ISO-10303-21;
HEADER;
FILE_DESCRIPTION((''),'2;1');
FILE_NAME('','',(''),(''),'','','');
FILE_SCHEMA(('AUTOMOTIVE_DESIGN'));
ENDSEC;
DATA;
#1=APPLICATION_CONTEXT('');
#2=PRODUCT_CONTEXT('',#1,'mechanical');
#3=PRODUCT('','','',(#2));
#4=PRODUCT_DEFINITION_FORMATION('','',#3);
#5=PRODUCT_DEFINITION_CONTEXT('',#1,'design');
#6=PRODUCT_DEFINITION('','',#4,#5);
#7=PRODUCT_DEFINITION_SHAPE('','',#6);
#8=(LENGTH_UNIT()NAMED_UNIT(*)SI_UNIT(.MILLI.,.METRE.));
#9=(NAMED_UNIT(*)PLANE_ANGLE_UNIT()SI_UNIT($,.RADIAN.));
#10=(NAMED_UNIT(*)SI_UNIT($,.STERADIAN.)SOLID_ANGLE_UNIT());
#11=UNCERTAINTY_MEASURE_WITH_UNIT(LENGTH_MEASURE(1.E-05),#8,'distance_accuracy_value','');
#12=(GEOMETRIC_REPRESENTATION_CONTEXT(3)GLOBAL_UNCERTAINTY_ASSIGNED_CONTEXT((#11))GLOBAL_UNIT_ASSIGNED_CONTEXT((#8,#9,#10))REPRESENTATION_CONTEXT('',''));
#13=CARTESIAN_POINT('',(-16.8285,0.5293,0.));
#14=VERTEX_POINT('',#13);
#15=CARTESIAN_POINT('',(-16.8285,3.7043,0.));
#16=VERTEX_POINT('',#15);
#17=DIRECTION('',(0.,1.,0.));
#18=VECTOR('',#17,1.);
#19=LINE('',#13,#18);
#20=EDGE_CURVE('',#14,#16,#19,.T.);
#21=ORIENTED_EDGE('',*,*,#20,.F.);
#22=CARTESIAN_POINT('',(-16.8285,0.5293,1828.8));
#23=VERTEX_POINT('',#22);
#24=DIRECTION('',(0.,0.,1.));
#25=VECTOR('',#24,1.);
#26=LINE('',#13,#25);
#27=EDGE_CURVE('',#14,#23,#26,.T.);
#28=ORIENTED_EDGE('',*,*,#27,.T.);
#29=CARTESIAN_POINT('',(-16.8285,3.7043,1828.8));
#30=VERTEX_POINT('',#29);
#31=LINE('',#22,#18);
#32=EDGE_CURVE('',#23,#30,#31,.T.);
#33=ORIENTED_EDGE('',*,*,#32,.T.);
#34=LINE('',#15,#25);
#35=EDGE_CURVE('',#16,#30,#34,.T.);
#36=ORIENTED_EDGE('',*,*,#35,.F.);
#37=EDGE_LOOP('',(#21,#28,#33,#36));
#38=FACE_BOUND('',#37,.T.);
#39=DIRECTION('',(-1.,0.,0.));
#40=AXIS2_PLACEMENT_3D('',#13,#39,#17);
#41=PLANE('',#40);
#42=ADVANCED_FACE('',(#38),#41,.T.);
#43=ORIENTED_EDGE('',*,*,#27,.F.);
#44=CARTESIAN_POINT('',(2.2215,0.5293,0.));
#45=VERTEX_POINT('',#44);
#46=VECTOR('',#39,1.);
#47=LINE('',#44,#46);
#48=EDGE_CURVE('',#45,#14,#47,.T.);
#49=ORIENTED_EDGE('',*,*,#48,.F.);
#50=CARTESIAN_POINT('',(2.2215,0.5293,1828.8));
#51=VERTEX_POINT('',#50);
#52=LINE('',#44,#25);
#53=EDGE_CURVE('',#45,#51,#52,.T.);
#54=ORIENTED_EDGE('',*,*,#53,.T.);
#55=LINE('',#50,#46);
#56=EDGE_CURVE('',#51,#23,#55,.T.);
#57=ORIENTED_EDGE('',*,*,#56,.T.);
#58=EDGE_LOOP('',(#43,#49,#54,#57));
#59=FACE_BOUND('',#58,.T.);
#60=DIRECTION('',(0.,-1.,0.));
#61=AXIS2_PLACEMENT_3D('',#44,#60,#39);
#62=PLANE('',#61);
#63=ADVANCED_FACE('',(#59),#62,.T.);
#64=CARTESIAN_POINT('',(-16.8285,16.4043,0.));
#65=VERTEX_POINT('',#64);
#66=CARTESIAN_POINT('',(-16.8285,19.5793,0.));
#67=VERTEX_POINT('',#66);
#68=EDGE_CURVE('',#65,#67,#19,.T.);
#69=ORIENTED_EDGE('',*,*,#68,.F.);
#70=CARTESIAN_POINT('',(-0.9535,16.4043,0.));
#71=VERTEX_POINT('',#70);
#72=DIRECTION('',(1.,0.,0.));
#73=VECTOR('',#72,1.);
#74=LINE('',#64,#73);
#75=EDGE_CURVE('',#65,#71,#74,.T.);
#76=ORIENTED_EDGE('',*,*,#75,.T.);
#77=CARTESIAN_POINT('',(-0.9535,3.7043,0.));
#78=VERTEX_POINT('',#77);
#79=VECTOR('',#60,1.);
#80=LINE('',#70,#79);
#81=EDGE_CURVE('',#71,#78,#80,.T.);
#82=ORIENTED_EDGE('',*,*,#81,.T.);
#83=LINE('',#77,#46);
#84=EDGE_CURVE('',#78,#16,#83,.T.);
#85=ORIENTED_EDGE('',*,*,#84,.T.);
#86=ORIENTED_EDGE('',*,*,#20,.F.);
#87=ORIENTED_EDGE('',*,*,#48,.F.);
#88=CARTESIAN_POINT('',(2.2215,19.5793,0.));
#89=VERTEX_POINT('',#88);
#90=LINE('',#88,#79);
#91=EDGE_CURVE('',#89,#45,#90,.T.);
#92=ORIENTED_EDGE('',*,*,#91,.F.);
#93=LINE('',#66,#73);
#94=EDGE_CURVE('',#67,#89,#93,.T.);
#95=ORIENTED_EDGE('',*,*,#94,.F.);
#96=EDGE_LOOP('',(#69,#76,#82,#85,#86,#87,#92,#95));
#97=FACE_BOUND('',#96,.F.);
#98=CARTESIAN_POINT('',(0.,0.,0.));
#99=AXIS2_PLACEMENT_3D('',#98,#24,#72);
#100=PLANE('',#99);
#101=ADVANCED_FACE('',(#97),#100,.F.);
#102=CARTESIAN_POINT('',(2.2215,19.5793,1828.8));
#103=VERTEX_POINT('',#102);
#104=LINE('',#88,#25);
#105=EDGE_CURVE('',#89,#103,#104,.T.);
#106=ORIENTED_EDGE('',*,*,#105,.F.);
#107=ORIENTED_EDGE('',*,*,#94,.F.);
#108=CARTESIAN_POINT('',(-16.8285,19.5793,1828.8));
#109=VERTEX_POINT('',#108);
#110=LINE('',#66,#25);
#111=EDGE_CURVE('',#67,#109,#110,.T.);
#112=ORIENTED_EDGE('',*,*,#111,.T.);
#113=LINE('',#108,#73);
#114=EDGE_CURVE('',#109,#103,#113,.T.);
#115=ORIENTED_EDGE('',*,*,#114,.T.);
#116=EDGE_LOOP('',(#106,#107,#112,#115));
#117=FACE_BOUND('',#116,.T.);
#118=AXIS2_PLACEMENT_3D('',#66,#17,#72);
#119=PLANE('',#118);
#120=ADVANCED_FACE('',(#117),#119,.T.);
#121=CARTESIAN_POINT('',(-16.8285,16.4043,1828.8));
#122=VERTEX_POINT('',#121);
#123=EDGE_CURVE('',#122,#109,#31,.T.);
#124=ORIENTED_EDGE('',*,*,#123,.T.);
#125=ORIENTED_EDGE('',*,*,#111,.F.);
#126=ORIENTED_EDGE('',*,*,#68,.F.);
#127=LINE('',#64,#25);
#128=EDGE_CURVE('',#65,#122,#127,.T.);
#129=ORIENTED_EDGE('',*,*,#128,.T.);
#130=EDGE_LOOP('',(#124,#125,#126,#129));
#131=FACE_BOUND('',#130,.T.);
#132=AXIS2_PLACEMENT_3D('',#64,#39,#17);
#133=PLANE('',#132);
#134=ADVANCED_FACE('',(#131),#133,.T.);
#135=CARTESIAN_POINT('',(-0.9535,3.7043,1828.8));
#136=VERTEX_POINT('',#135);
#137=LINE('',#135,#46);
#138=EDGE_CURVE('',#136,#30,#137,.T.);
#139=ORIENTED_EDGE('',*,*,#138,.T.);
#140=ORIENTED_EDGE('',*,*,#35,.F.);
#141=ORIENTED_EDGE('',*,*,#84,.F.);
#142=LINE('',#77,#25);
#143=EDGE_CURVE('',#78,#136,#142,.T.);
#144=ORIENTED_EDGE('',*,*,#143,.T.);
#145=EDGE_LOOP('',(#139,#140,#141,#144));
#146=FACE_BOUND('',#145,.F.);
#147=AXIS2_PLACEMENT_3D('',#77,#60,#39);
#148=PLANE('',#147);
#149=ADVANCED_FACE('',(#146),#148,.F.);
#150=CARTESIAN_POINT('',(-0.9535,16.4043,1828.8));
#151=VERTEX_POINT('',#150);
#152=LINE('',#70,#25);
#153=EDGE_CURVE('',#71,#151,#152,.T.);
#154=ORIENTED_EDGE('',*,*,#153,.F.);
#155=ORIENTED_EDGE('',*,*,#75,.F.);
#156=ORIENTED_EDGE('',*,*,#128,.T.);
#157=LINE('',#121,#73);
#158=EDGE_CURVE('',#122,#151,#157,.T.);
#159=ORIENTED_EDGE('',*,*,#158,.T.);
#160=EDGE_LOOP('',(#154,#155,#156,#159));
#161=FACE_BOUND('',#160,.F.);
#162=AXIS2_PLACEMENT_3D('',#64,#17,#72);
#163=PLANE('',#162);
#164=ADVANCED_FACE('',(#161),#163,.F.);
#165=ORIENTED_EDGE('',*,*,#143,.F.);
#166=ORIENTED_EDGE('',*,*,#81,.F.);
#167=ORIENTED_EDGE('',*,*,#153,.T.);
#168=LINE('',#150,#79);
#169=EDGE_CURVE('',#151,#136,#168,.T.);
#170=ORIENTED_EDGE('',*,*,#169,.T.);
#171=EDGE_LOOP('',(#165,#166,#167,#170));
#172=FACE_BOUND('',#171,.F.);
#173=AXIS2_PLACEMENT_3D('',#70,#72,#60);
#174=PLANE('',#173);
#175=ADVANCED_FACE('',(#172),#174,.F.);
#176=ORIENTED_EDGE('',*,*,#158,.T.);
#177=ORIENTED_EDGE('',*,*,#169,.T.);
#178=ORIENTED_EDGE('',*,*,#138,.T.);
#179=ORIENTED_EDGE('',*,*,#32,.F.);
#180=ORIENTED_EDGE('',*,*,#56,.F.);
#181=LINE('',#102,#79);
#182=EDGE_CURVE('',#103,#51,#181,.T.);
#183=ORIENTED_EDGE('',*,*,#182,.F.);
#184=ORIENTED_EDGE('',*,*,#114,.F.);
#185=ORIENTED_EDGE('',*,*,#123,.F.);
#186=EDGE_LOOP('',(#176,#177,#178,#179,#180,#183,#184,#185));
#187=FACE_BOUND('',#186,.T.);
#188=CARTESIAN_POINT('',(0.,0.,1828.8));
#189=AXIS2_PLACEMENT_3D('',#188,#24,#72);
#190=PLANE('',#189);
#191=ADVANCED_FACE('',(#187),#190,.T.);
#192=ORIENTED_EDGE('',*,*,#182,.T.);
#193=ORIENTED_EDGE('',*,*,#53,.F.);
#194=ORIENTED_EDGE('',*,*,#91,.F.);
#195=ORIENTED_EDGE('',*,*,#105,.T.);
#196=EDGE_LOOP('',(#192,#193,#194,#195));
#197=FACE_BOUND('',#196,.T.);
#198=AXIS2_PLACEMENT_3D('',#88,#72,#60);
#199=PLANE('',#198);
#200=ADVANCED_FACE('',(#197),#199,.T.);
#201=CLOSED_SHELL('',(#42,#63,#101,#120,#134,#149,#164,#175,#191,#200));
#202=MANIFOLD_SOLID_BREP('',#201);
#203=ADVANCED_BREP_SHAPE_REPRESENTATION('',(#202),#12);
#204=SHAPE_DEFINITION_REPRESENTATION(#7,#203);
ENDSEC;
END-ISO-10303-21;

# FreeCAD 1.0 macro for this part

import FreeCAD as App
import Part
import Sketcher
Q = App.Units.Quantity

doc = App.newDocument("Part")
body = doc.addObject("PartDesign::Body", "Body")

sketch1 = body.newObject("Sketcher::SketchObject", "Sketch")
sketch1.AttachmentSupport = (doc.getObject("XY_Plane"), [""])
sketch1.MapMode = "FlatFace"
sketch1.addGeometry(Part.LineSegment(App.Vector(2.2, 19.6, 0), App.Vector(-16.8, 19.6, 0)), False)
sketch1.addGeometry(Part.LineSegment(App.Vector(-16.8, 19.6, 0), App.Vector(-16.8, 16.4, 0)), False)
sketch1.addGeometry(Part.LineSegment(App.Vector(-16.8, 16.4, 0), App.Vector(-1, 16.4, 0)), False)
sketch1.addGeometry(Part.LineSegment(App.Vector(-1, 16.4, 0), App.Vector(-1, 3.7, 0)), False)
sketch1.addGeometry(Part.LineSegment(App.Vector(-1, 3.7, 0), App.Vector(-16.8, 3.7, 0)), False)
sketch1.addGeometry(Part.LineSegment(App.Vector(-16.8, 3.7, 0), App.Vector(-16.8, 0.5, 0)), False)
sketch1.addGeometry(Part.LineSegment(App.Vector(-16.8, 0.5, 0), App.Vector(2.2, 0.5, 0)), False)
sketch1.addGeometry(Part.LineSegment(App.Vector(2.2, 0.5, 0), App.Vector(2.2, 19.6, 0)), False)
sketch1.addConstraint(Sketcher.Constraint("Coincident", 0, 2, 1, 1))
sketch1.addConstraint(Sketcher.Constraint("Coincident", 1, 2, 2, 1))
sketch1.addConstraint(Sketcher.Constraint("Coincident", 2, 2, 3, 1))
sketch1.addConstraint(Sketcher.Constraint("Coincident", 3, 2, 4, 1))
sketch1.addConstraint(Sketcher.Constraint("Coincident", 4, 2, 5, 1))
sketch1.addConstraint(Sketcher.Constraint("Coincident", 5, 2, 6, 1))
sketch1.addConstraint(Sketcher.Constraint("Coincident", 6, 2, 7, 1))
sketch1.addConstraint(Sketcher.Constraint("Coincident", 7, 2, 0, 1))
sketch1.addConstraint(Sketcher.Constraint("Horizontal", 0))
sketch1.addConstraint(Sketcher.Constraint("Vertical", 1))
sketch1.addConstraint(Sketcher.Constraint("Horizontal", 2))
sketch1.addConstraint(Sketcher.Constraint("Vertical", 3))
sketch1.addConstraint(Sketcher.Constraint("Horizontal", 4))
sketch1.addConstraint(Sketcher.Constraint("Vertical", 5))
sketch1.addConstraint(Sketcher.Constraint("Horizontal", 6))
sketch1.addConstraint(Sketcher.Constraint("Vertical", 7))
sketch1.addConstraint(Sketcher.Constraint("Vertical", 1, 2, 4, 2))
sketch1.addConstraint(Sketcher.Constraint("Equal", 1, 5))
sketch1.addConstraint(Sketcher.Constraint("Equal", 6, 7))
sketch1.addConstraint(Sketcher.Constraint("DistanceX", 0, 2, 0, 1, Q("0.75 in")))
sketch1.addConstraint(Sketcher.Constraint("DistanceY", 1, 2, 1, 1, Q("0.125 in")))
sketch1.addConstraint(Sketcher.Constraint("DistanceX", 3, 2, 6, 2, Q("0.125 in")))
sketch1.addConstraint(Sketcher.Constraint("DistanceX", 0, 2, -1, 1, 16.8285))
sketch1.addConstraint(Sketcher.Constraint("DistanceY", -1, 1, 0, 2, 19.5793))
pad1 = body.newObject("PartDesign::Pad", "Pad")
pad1.Profile = sketch1
pad1.Length = Q("72 in")

doc.recompute()
